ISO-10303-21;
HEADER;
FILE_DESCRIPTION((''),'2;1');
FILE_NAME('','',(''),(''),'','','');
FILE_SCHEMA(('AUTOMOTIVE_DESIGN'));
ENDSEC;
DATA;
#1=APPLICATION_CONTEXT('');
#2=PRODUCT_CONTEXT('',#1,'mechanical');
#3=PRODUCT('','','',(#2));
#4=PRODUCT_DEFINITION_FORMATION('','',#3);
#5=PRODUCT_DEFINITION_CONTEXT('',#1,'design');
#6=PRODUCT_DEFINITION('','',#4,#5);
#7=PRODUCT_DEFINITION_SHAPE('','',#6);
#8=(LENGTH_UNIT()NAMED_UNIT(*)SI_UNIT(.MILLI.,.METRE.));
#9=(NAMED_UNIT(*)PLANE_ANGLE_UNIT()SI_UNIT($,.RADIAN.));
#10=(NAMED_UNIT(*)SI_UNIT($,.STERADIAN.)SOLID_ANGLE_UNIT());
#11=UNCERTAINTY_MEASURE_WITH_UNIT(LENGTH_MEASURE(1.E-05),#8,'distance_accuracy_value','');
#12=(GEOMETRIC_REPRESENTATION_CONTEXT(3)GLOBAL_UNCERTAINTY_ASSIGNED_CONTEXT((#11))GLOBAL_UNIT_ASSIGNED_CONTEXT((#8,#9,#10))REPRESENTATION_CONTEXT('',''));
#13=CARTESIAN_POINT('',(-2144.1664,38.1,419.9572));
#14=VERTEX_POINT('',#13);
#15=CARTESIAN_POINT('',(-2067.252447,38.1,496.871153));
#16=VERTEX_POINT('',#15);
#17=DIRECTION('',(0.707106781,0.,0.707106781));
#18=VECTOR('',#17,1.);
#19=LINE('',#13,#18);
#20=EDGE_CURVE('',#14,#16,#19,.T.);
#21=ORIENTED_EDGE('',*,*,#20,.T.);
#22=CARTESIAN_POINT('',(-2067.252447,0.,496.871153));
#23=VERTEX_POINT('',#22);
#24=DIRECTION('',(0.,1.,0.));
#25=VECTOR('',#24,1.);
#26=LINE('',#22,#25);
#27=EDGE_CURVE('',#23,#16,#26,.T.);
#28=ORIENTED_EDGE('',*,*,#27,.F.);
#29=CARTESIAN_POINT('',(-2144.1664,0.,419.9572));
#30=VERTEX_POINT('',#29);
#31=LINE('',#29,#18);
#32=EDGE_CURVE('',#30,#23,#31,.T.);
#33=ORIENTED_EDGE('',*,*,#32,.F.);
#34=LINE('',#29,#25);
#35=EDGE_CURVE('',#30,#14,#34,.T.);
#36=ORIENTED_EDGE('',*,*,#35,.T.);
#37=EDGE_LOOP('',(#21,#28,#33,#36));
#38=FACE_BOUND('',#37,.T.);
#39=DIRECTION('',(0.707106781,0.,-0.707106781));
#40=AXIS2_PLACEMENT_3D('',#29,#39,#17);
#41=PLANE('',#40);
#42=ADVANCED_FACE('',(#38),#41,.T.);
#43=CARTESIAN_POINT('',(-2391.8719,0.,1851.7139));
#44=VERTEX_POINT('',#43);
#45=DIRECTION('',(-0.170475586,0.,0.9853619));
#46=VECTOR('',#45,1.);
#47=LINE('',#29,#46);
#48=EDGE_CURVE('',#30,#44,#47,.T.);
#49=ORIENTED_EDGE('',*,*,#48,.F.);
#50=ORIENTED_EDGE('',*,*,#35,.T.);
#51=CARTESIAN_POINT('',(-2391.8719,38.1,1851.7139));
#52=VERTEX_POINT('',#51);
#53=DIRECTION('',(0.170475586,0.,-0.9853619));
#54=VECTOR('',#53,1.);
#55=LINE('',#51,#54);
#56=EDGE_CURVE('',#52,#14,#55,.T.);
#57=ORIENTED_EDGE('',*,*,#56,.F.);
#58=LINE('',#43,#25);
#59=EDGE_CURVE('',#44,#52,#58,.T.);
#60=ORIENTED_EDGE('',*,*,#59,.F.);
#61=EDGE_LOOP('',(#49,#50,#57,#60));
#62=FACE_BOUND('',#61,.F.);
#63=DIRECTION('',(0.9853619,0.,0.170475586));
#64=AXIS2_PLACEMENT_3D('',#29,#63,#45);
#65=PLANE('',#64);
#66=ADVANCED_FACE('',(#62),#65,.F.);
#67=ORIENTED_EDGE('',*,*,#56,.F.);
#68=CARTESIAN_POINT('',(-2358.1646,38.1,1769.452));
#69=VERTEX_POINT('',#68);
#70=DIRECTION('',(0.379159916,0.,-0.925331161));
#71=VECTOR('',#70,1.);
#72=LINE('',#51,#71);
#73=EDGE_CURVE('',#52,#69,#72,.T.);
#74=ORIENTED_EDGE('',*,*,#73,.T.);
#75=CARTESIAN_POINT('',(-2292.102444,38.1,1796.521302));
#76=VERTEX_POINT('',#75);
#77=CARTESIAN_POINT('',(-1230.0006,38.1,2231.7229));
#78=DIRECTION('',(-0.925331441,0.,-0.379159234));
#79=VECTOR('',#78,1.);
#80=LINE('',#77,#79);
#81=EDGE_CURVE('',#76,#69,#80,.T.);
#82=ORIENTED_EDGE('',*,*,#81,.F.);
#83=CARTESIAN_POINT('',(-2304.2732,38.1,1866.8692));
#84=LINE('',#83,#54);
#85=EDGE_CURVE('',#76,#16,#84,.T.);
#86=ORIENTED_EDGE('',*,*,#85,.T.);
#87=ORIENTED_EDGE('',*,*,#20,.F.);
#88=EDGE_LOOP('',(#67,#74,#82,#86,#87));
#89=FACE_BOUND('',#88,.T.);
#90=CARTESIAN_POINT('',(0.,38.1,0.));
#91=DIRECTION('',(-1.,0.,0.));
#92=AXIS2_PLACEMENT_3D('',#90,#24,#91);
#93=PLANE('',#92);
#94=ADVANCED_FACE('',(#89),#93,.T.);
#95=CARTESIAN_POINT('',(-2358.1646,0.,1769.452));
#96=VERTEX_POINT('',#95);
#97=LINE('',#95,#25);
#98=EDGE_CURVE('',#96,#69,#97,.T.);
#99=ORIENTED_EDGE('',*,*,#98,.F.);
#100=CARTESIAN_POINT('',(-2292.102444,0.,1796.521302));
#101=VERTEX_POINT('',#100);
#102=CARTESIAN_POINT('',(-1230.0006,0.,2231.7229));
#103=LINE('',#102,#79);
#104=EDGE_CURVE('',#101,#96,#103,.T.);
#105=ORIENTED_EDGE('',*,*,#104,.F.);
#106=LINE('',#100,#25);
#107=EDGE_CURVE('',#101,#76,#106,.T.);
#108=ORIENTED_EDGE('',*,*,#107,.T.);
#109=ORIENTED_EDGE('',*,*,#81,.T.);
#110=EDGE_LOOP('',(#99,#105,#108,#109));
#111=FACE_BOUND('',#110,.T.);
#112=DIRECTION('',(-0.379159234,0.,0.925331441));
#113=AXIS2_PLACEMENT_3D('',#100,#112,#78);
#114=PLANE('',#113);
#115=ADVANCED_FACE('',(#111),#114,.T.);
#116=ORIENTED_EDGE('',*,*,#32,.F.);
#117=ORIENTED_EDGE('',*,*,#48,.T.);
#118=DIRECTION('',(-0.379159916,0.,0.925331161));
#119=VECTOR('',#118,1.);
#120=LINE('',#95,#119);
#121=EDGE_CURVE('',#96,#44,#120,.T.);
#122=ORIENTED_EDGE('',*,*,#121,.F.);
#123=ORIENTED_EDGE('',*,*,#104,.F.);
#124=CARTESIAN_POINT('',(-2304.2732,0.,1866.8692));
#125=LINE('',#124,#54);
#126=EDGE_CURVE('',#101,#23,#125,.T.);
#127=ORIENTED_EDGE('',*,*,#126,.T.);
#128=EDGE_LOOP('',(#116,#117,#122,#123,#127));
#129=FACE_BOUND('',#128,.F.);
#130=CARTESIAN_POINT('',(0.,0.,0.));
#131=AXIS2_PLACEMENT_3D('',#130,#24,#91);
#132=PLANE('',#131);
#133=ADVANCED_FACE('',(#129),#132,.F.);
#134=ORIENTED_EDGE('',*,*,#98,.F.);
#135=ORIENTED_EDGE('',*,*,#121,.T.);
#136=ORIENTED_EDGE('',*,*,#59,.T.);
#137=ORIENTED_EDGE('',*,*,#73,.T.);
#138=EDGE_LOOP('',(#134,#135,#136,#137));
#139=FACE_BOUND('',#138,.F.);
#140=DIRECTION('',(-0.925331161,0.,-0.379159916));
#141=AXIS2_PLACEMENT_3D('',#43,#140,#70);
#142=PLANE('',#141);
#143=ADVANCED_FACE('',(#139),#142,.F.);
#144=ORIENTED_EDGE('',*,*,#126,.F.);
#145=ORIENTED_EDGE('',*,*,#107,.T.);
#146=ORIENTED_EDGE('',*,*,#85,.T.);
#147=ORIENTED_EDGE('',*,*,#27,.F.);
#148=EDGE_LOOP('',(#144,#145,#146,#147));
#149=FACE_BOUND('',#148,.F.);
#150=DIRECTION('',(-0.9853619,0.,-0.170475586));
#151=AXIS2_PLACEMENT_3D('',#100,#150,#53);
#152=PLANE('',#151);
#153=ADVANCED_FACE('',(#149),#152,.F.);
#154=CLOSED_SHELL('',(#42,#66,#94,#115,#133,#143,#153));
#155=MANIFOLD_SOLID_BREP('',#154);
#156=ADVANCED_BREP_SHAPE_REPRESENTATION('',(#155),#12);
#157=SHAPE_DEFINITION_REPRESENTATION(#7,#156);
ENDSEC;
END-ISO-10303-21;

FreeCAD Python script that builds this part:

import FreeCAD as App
import Part
import Sketcher
from FreeCAD import Vector
Q = App.Units.Quantity

doc = App.newDocument("Part")
body = doc.addObject("PartDesign::Body", "Body")

# Sketch on XZ plane
sketch1 = body.newObject("Sketcher::SketchObject", "Sketch")
sketch1.AttachmentSupport = (doc.getObject("XZ_Plane"), [""])
sketch1.MapMode = "FlatFace"
sketch1.addGeometry(Part.LineSegment(Vector(-2067, 497, 0), Vector(-2144, 420, 0)), False)
sketch1.addGeometry(Part.LineSegment(Vector(-2144, 420, 0), Vector(-2392, 1852, 0)), False)
sketch1.addGeometry(Part.LineSegment(Vector(-2392, 1852, 0), Vector(-2358, 1769, 0)), False)
sketch1.addGeometry(Part.LineSegment(Vector(-2358, 1769, 0), Vector(-2292, 1797, 0)), False)
sketch1.addGeometry(Part.LineSegment(Vector(-2292, 1797, 0), Vector(-2067, 497, 0)), False)
sketch1.addConstraint(Sketcher.Constraint("Coincident", 0, 2, 1, 1))
sketch1.addConstraint(Sketcher.Constraint("Coincident", 1, 2, 2, 1))
sketch1.addConstraint(Sketcher.Constraint("Coincident", 2, 2, 3, 1))
sketch1.addConstraint(Sketcher.Constraint("Coincident", 3, 2, 4, 1))
sketch1.addConstraint(Sketcher.Constraint("Coincident", 4, 2, 0, 1))
sketch1.addConstraint(Sketcher.Constraint("Perpendicular", 2, 3))
sketch1.addConstraint(Sketcher.Constraint("Parallel", 1, 4))
sketch1.addConstraint(Sketcher.Constraint("Distance", 2, Q("3.5 in")))
sketch1.addConstraint(Sketcher.Constraint("Angle", 0, Q("-135 deg")))
sketch1.addConstraint(Sketcher.Constraint("DistanceX", 0, 2, -1, 1, Q("84.416 in")))
sketch1.addConstraint(Sketcher.Constraint("Distance", 0, Q("4.2824 in")))
sketch1.addConstraint(Sketcher.Constraint("DistanceY", 4, 2, 2, 2, Q("50.1016 in")))
sketch1.addConstraint(Sketcher.Constraint("DistanceX", 1, 2, 4, 2, Q("12.7803 in")))
sketch1.addConstraint(Sketcher.Constraint("Distance", 1, 1453.0262))
sketch1.addConstraint(Sketcher.Constraint("DistanceY", -1, 1, 0, 2, 419.9572))
pad1 = body.newObject("PartDesign::Pad", "Pad")
pad1.Profile = sketch1
pad1.Length = Q("1.5 in")
pad1.Reversed = True

doc.recompute()
